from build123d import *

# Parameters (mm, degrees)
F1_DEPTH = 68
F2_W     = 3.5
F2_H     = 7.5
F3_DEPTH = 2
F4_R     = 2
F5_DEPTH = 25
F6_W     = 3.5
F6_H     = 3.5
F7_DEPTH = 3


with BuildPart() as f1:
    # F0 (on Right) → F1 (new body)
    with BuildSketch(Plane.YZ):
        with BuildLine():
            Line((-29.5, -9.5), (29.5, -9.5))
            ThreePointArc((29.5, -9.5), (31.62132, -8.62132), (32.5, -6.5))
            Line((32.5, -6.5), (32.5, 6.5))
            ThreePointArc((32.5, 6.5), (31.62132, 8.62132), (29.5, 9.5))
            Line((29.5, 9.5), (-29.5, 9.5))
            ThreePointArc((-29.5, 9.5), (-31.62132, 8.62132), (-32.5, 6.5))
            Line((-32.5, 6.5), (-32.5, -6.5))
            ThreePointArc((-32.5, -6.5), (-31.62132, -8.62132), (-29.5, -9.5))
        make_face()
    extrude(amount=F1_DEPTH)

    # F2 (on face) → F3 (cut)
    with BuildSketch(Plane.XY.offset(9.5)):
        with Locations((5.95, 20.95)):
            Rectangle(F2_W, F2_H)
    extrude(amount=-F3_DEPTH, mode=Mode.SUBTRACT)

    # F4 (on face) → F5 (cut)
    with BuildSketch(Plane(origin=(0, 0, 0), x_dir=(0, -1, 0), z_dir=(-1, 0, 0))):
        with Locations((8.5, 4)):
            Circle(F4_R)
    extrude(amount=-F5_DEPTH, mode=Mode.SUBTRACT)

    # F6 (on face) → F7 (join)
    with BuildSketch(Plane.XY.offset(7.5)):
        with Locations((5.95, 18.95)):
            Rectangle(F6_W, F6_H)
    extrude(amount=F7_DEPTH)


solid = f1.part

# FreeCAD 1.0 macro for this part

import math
import FreeCAD as App
import Part
import Sketcher
from FreeCAD import Vector


def add_polygon(sketch, points):
    """Adds a closed chain of lines whose ends are joined by coincident constraints."""
    first, n = sketch.GeometryCount, len(points)
    for a, b in zip(points, points[1:] + points[:1]):
        sketch.addGeometry(Part.LineSegment(App.Vector(*a, 0), App.Vector(*b, 0)), False)
    for i in range(n):
        sketch.addConstraint(Sketcher.Constraint("Coincident", first + i, 2, first + (i + 1) % n, 1))

doc = App.newDocument("Part")
body = doc.addObject("PartDesign::Body", "Body")

sketch1 = doc.addObject("Sketcher::SketchObject", "Sketch")
body.addObject(sketch1)
sketch1.AttachmentSupport = (doc.YZ_Plane, [""])
sketch1.MapMode = "FlatFace"
sketch1.addGeometry(Part.LineSegment(Vector(-29.5, -9.5, 0), Vector(29.5, -9.5, 0)), False)
sketch1.addGeometry(Part.ArcOfCircle(Part.Circle(Vector(29.5, -6.5, 0), Vector(0, 0, 1), 3), math.radians(-90), math.radians(0)), False)
sketch1.addGeometry(Part.LineSegment(Vector(32.5, -6.5, 0), Vector(32.5, 6.5, 0)), False)
sketch1.addGeometry(Part.ArcOfCircle(Part.Circle(Vector(29.5, 6.5, 0), Vector(0, 0, 1), 3), math.radians(0), math.radians(90)), False)
sketch1.addGeometry(Part.LineSegment(Vector(29.5, 9.5, 0), Vector(-29.5, 9.5, 0)), False)
sketch1.addGeometry(Part.ArcOfCircle(Part.Circle(Vector(-29.5, 6.5, 0), Vector(0, 0, 1), 3), math.radians(90), math.radians(180)), False)
sketch1.addGeometry(Part.LineSegment(Vector(-32.5, 6.5, 0), Vector(-32.5, -6.5, 0)), False)
sketch1.addGeometry(Part.ArcOfCircle(Part.Circle(Vector(-29.5, -6.5, 0), Vector(0, 0, 1), 3), math.radians(-180), math.radians(-90)), False)
sketch1.addConstraint(Sketcher.Constraint("Tangent", 0, 2, 1, 1))
sketch1.addConstraint(Sketcher.Constraint("Tangent", 1, 2, 2, 1))
sketch1.addConstraint(Sketcher.Constraint("Tangent", 2, 2, 3, 1))
sketch1.addConstraint(Sketcher.Constraint("Tangent", 3, 2, 4, 1))
sketch1.addConstraint(Sketcher.Constraint("Tangent", 4, 2, 5, 1))
sketch1.addConstraint(Sketcher.Constraint("Tangent", 5, 2, 6, 1))
sketch1.addConstraint(Sketcher.Constraint("Tangent", 6, 2, 7, 1))
sketch1.addConstraint(Sketcher.Constraint("Tangent", 7, 2, 0, 1))
sketch1.addConstraint(Sketcher.Constraint("Horizontal", 0))
sketch1.addConstraint(Sketcher.Constraint("Vertical", 2))
sketch1.addConstraint(Sketcher.Constraint("Horizontal", 4))
sketch1.addConstraint(Sketcher.Constraint("Vertical", 6))
sketch1.addConstraint(Sketcher.Constraint("Equal", 1, 3))
sketch1.addConstraint(Sketcher.Constraint("Equal", 3, 5))
sketch1.addConstraint(Sketcher.Constraint("Equal", 5, 7))
sketch1.addConstraint(Sketcher.Constraint("Symmetric", 1, 3, 5, 3, -1, 1))
sketch1.addConstraint(Sketcher.Constraint("Radius", 1, 3.000001))
sketch1.addConstraint(Sketcher.Constraint("DistanceX", 0, 1, 0, 2, 59.0))
sketch1.addConstraint(Sketcher.Constraint("DistanceY", 2, 1, 2, 2, 13.0))
pad1 = doc.addObject("PartDesign::Pad", "Pad")
body.addObject(pad1)
pad1.Profile = sketch1
pad1.Length = 68

sketch2 = doc.addObject("Sketcher::SketchObject", "Sketch001")
body.addObject(sketch2)
sketch2.AttachmentSupport = (doc.XY_Plane, [""])
sketch2.MapMode = "FlatFace"
sketch2.AttachmentOffset = App.Placement(Vector(0, 0, 9.5), App.Rotation())
add_polygon(sketch2, [(4.2, 24.7), (4.2, 17.2), (7.7, 17.2), (7.7, 24.7)])
sketch2.addConstraint(Sketcher.Constraint("Vertical", 0))
sketch2.addConstraint(Sketcher.Constraint("Horizontal", 1))
sketch2.addConstraint(Sketcher.Constraint("Vertical", 2))
sketch2.addConstraint(Sketcher.Constraint("Horizontal", 3))
sketch2.addConstraint(Sketcher.Constraint("DistanceX", 1, 1, 1, 2, 3.5))
sketch2.addConstraint(Sketcher.Constraint("DistanceY", 0, 2, 0, 1, 7.5))
sketch2.addConstraint(Sketcher.Constraint("DistanceX", -1, 1, 0, 2, 4.2))
sketch2.addConstraint(Sketcher.Constraint("DistanceY", -1, 1, 0, 2, 17.2))
pocket1 = doc.addObject("PartDesign::Pocket", "Pocket")
body.addObject(pocket1)
pocket1.Profile = sketch2
pocket1.Length = 2

sketch3 = doc.addObject("Sketcher::SketchObject", "Sketch002")
body.addObject(sketch3)
sketch3.AttachmentSupport = (doc.YZ_Plane, [""])
sketch3.MapMode = "FlatFace"
sketch3.addGeometry(Part.Circle(Vector(-8.5, 4, 0), Vector(0, 0, 1), 2), False)
sketch3.addConstraint(Sketcher.Constraint("Diameter", 0, 4.0))
sketch3.addConstraint(Sketcher.Constraint("DistanceY", -1, 1, 0, 3, 4.0))
sketch3.addConstraint(Sketcher.Constraint("DistanceX", 0, 3, -1, 1, 8.5))
pocket2 = doc.addObject("PartDesign::Pocket", "Pocket001")
body.addObject(pocket2)
pocket2.Profile = sketch3
pocket2.Length = 25
pocket2.Reversed = True

sketch4 = doc.addObject("Sketcher::SketchObject", "Sketch003")
body.addObject(sketch4)
sketch4.AttachmentSupport = (doc.XY_Plane, [""])
sketch4.MapMode = "FlatFace"
sketch4.AttachmentOffset = App.Placement(Vector(0, 0, 7.5), App.Rotation())
add_polygon(sketch4, [(4.2, 20.7), (4.2, 17.2), (7.7, 17.2), (7.7, 20.7)])
sketch4.addConstraint(Sketcher.Constraint("Vertical", 0))
sketch4.addConstraint(Sketcher.Constraint("Horizontal", 1))
sketch4.addConstraint(Sketcher.Constraint("Vertical", 2))
sketch4.addConstraint(Sketcher.Constraint("Horizontal", 3))
sketch4.addConstraint(Sketcher.Constraint("Equal", 3, 0))
sketch4.addConstraint(Sketcher.Constraint("DistanceX", 1, 1, 1, 2, 3.5))
sketch4.addConstraint(Sketcher.Constraint("DistanceX", -1, 1, 0, 2, 4.2))
sketch4.addConstraint(Sketcher.Constraint("DistanceY", -1, 1, 0, 2, 17.2))
pad2 = doc.addObject("PartDesign::Pad", "Pad001")
body.addObject(pad2)
pad2.Profile = sketch4
pad2.Length = 3

doc.recompute()
